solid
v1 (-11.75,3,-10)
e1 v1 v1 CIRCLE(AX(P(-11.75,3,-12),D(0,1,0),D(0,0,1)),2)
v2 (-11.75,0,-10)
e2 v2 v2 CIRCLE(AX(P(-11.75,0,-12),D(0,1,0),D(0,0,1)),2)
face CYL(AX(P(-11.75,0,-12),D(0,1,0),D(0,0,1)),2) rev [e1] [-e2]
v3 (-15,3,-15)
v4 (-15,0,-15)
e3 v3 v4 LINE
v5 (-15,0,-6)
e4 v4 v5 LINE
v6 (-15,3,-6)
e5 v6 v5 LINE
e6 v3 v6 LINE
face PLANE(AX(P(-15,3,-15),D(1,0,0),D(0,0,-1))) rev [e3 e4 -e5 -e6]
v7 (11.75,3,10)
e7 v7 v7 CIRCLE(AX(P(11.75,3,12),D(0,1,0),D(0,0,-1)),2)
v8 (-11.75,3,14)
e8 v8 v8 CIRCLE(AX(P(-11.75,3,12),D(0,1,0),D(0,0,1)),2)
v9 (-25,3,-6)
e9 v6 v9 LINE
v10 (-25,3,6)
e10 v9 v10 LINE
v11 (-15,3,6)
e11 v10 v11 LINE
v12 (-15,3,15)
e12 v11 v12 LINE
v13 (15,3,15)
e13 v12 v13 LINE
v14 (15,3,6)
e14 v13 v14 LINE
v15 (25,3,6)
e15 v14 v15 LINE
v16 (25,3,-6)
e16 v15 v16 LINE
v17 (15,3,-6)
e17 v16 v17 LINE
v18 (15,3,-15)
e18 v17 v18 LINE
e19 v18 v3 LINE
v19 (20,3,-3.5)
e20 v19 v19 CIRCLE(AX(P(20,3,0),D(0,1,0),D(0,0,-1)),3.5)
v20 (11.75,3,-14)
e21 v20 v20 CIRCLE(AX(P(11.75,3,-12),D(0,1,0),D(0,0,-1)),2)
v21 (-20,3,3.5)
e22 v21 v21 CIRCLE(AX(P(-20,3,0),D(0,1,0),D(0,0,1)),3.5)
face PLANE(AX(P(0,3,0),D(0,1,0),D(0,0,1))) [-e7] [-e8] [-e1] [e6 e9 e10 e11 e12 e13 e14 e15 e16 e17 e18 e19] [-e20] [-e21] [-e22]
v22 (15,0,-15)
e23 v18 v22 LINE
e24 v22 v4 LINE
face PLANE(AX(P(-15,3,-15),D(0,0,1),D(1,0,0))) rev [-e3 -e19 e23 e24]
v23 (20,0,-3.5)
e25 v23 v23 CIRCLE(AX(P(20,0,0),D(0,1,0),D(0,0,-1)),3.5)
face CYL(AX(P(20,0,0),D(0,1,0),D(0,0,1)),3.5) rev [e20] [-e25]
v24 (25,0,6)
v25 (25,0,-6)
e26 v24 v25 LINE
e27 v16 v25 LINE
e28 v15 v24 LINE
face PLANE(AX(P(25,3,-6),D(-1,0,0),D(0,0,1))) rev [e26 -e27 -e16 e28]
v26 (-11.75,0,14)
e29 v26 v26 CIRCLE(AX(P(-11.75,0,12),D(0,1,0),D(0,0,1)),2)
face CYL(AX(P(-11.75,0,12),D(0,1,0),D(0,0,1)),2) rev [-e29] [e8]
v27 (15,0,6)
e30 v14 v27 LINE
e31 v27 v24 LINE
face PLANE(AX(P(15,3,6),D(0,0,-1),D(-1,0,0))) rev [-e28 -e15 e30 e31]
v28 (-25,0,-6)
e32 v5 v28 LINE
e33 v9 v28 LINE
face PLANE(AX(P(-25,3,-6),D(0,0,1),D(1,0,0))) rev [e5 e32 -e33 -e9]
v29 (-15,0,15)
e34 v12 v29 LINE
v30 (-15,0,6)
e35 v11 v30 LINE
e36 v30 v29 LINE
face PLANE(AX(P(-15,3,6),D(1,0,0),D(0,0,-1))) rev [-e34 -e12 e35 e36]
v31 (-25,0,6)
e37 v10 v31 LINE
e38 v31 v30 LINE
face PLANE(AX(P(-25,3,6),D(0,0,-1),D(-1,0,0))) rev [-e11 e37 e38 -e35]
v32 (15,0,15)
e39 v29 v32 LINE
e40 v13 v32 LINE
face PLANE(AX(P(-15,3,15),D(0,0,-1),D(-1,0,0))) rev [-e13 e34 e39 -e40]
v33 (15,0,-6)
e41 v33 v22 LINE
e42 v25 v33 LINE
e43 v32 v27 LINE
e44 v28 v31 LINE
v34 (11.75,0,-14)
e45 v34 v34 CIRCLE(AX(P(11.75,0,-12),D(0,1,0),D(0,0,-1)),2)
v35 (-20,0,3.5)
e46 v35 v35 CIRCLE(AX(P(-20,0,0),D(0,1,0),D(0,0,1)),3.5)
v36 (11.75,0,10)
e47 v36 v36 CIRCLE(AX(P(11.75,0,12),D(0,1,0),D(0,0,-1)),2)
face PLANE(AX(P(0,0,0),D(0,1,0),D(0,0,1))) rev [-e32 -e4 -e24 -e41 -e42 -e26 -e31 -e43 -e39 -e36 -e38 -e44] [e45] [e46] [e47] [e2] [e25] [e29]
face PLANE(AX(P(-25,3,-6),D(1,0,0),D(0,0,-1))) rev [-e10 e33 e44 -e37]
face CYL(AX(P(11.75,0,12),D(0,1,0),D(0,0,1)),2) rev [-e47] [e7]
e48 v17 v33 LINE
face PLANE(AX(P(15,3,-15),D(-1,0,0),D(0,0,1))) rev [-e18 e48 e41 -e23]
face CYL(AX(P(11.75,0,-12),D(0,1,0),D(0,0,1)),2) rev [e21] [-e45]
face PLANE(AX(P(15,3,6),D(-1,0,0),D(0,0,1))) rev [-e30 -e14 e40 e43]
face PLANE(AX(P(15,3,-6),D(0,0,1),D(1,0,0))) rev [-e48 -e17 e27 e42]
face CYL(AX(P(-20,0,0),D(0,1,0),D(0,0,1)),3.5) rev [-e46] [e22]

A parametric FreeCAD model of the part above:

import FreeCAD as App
import Part
import Sketcher

V = App.Vector


def add_polygon(sketch, points):
    """Adds a closed chain of lines whose ends are joined by coincident constraints."""
    first, n = sketch.GeometryCount, len(points)
    for a, b in zip(points, points[1:] + points[:1]):
        sketch.addGeometry(Part.LineSegment(App.Vector(*a, 0), App.Vector(*b, 0)), False)
    for i in range(n):
        sketch.addConstraint(Sketcher.Constraint("Coincident", first + i, 2, first + (i + 1) % n, 1))

doc = App.newDocument("Part")
body = doc.addObject("PartDesign::Body", "Body")

# Sketch on XZ plane
sketch1 = doc.addObject("Sketcher::SketchObject", "Sketch")
body.addObject(sketch1)
sketch1.AttachmentSupport = (doc.XZ_Plane, [""])
sketch1.MapMode = "FlatFace"
add_polygon(sketch1, [(-15, 6), (-15, 15), (15, 15), (15, 6), (25, 6), (25, -6), (15, -6), (15, -15), (-15, -15), (-15, -6), (-25, -6), (-25, 6)])  # lines 0-11
sketch1.addConstraint([
    Sketcher.Constraint("Vertical", 0),
    Sketcher.Constraint("Horizontal", 1),
    Sketcher.Constraint("Vertical", 2),
    Sketcher.Constraint("Horizontal", 3),
    Sketcher.Constraint("Vertical", 4),
    Sketcher.Constraint("Horizontal", 5),
    Sketcher.Constraint("Vertical", 6),
    Sketcher.Constraint("Horizontal", 7),
    Sketcher.Constraint("Vertical", 8),
    Sketcher.Constraint("Horizontal", 9),
    Sketcher.Constraint("Vertical", 10),
    Sketcher.Constraint("Horizontal", 11),
    Sketcher.Constraint("Symmetric", 0, 2, 6, 2, -1, 1),
    Sketcher.Constraint("Symmetric", 2, 2, 8, 2, -1, 1),
    Sketcher.Constraint("Symmetric", 4, 2, 10, 2, -1, 1),
    Sketcher.Constraint("Symmetric", 5, 2, 8, 2, -2),
    Sketcher.Constraint("DistanceX", 1, 1, 1, 2, 30.0),
    Sketcher.Constraint("DistanceX", 3, 1, 3, 2, 10.0),
    Sketcher.Constraint("DistanceY", 0, 1, 0, 2, 9.0),
    Sketcher.Constraint("DistanceY", 4, 2, 4, 1, 12.0),
])
pad1 = doc.addObject("PartDesign::Pad", "Pad")
body.addObject(pad1)
pad1.Profile = sketch1
pad1.Length = 3
pad1.Reversed = True

# Sketch on XZ plane
sketch2 = doc.addObject("Sketcher::SketchObject", "Sketch001")
body.addObject(sketch2)
sketch2.AttachmentSupport = (doc.XZ_Plane, [""])
sketch2.MapMode = "FlatFace"
sketch2.AttachmentOffset = App.Placement(V(0, 0, -3), App.Rotation())
sketch2.addGeometry([
    Part.Circle(V(-20, 0, 0), V(0, 0, 1), 3.5),  # 0
    Part.Circle(V(-11.8, -12, 0), V(0, 0, 1), 2),  # 1
    Part.Circle(V(-11.8, 12, 0), V(0, 0, 1), 2),  # 2
    Part.Circle(V(11.8, 12, 0), V(0, 0, 1), 2),  # 3
    Part.Circle(V(20, 0, 0), V(0, 0, 1), 3.5),  # 4
    Part.Circle(V(11.8, -12, 0), V(0, 0, 1), 2),  # 5
], False)
sketch2.addConstraint([
    Sketcher.Constraint("Equal", 1, 2),
    Sketcher.Constraint("Equal", 2, 3),
    Sketcher.Constraint("Equal", 0, 4),
    Sketcher.Constraint("Equal", 3, 5),
    Sketcher.Constraint("Symmetric", 1, 3, 3, 3, -1, 1),
    Sketcher.Constraint("Symmetric", 0, 3, 4, 3, -1, 1),
    Sketcher.Constraint("Symmetric", 2, 3, 5, 3, -1, 1),
    Sketcher.Constraint("Symmetric", 2, 3, 3, 3, -2),
    Sketcher.Constraint("PointOnObject", 0, 3, -1),
    Sketcher.Constraint("Diameter", 0, 7.0),
    Sketcher.Constraint("Diameter", 1, 4.0),
    Sketcher.Constraint("DistanceX", 0, 3, -1, 1, 20.0),
    Sketcher.Constraint("DistanceY", 1, 3, -1, 1, 12.0),
    Sketcher.Constraint("DistanceX", 2, 3, 3, 3, 23.5),
])
pocket1 = doc.addObject("PartDesign::Pocket", "Pocket")
body.addObject(pocket1)
pocket1.Profile = sketch2
pocket1.Type = "ThroughAll"
pocket1.Reversed = True

doc.recompute()
